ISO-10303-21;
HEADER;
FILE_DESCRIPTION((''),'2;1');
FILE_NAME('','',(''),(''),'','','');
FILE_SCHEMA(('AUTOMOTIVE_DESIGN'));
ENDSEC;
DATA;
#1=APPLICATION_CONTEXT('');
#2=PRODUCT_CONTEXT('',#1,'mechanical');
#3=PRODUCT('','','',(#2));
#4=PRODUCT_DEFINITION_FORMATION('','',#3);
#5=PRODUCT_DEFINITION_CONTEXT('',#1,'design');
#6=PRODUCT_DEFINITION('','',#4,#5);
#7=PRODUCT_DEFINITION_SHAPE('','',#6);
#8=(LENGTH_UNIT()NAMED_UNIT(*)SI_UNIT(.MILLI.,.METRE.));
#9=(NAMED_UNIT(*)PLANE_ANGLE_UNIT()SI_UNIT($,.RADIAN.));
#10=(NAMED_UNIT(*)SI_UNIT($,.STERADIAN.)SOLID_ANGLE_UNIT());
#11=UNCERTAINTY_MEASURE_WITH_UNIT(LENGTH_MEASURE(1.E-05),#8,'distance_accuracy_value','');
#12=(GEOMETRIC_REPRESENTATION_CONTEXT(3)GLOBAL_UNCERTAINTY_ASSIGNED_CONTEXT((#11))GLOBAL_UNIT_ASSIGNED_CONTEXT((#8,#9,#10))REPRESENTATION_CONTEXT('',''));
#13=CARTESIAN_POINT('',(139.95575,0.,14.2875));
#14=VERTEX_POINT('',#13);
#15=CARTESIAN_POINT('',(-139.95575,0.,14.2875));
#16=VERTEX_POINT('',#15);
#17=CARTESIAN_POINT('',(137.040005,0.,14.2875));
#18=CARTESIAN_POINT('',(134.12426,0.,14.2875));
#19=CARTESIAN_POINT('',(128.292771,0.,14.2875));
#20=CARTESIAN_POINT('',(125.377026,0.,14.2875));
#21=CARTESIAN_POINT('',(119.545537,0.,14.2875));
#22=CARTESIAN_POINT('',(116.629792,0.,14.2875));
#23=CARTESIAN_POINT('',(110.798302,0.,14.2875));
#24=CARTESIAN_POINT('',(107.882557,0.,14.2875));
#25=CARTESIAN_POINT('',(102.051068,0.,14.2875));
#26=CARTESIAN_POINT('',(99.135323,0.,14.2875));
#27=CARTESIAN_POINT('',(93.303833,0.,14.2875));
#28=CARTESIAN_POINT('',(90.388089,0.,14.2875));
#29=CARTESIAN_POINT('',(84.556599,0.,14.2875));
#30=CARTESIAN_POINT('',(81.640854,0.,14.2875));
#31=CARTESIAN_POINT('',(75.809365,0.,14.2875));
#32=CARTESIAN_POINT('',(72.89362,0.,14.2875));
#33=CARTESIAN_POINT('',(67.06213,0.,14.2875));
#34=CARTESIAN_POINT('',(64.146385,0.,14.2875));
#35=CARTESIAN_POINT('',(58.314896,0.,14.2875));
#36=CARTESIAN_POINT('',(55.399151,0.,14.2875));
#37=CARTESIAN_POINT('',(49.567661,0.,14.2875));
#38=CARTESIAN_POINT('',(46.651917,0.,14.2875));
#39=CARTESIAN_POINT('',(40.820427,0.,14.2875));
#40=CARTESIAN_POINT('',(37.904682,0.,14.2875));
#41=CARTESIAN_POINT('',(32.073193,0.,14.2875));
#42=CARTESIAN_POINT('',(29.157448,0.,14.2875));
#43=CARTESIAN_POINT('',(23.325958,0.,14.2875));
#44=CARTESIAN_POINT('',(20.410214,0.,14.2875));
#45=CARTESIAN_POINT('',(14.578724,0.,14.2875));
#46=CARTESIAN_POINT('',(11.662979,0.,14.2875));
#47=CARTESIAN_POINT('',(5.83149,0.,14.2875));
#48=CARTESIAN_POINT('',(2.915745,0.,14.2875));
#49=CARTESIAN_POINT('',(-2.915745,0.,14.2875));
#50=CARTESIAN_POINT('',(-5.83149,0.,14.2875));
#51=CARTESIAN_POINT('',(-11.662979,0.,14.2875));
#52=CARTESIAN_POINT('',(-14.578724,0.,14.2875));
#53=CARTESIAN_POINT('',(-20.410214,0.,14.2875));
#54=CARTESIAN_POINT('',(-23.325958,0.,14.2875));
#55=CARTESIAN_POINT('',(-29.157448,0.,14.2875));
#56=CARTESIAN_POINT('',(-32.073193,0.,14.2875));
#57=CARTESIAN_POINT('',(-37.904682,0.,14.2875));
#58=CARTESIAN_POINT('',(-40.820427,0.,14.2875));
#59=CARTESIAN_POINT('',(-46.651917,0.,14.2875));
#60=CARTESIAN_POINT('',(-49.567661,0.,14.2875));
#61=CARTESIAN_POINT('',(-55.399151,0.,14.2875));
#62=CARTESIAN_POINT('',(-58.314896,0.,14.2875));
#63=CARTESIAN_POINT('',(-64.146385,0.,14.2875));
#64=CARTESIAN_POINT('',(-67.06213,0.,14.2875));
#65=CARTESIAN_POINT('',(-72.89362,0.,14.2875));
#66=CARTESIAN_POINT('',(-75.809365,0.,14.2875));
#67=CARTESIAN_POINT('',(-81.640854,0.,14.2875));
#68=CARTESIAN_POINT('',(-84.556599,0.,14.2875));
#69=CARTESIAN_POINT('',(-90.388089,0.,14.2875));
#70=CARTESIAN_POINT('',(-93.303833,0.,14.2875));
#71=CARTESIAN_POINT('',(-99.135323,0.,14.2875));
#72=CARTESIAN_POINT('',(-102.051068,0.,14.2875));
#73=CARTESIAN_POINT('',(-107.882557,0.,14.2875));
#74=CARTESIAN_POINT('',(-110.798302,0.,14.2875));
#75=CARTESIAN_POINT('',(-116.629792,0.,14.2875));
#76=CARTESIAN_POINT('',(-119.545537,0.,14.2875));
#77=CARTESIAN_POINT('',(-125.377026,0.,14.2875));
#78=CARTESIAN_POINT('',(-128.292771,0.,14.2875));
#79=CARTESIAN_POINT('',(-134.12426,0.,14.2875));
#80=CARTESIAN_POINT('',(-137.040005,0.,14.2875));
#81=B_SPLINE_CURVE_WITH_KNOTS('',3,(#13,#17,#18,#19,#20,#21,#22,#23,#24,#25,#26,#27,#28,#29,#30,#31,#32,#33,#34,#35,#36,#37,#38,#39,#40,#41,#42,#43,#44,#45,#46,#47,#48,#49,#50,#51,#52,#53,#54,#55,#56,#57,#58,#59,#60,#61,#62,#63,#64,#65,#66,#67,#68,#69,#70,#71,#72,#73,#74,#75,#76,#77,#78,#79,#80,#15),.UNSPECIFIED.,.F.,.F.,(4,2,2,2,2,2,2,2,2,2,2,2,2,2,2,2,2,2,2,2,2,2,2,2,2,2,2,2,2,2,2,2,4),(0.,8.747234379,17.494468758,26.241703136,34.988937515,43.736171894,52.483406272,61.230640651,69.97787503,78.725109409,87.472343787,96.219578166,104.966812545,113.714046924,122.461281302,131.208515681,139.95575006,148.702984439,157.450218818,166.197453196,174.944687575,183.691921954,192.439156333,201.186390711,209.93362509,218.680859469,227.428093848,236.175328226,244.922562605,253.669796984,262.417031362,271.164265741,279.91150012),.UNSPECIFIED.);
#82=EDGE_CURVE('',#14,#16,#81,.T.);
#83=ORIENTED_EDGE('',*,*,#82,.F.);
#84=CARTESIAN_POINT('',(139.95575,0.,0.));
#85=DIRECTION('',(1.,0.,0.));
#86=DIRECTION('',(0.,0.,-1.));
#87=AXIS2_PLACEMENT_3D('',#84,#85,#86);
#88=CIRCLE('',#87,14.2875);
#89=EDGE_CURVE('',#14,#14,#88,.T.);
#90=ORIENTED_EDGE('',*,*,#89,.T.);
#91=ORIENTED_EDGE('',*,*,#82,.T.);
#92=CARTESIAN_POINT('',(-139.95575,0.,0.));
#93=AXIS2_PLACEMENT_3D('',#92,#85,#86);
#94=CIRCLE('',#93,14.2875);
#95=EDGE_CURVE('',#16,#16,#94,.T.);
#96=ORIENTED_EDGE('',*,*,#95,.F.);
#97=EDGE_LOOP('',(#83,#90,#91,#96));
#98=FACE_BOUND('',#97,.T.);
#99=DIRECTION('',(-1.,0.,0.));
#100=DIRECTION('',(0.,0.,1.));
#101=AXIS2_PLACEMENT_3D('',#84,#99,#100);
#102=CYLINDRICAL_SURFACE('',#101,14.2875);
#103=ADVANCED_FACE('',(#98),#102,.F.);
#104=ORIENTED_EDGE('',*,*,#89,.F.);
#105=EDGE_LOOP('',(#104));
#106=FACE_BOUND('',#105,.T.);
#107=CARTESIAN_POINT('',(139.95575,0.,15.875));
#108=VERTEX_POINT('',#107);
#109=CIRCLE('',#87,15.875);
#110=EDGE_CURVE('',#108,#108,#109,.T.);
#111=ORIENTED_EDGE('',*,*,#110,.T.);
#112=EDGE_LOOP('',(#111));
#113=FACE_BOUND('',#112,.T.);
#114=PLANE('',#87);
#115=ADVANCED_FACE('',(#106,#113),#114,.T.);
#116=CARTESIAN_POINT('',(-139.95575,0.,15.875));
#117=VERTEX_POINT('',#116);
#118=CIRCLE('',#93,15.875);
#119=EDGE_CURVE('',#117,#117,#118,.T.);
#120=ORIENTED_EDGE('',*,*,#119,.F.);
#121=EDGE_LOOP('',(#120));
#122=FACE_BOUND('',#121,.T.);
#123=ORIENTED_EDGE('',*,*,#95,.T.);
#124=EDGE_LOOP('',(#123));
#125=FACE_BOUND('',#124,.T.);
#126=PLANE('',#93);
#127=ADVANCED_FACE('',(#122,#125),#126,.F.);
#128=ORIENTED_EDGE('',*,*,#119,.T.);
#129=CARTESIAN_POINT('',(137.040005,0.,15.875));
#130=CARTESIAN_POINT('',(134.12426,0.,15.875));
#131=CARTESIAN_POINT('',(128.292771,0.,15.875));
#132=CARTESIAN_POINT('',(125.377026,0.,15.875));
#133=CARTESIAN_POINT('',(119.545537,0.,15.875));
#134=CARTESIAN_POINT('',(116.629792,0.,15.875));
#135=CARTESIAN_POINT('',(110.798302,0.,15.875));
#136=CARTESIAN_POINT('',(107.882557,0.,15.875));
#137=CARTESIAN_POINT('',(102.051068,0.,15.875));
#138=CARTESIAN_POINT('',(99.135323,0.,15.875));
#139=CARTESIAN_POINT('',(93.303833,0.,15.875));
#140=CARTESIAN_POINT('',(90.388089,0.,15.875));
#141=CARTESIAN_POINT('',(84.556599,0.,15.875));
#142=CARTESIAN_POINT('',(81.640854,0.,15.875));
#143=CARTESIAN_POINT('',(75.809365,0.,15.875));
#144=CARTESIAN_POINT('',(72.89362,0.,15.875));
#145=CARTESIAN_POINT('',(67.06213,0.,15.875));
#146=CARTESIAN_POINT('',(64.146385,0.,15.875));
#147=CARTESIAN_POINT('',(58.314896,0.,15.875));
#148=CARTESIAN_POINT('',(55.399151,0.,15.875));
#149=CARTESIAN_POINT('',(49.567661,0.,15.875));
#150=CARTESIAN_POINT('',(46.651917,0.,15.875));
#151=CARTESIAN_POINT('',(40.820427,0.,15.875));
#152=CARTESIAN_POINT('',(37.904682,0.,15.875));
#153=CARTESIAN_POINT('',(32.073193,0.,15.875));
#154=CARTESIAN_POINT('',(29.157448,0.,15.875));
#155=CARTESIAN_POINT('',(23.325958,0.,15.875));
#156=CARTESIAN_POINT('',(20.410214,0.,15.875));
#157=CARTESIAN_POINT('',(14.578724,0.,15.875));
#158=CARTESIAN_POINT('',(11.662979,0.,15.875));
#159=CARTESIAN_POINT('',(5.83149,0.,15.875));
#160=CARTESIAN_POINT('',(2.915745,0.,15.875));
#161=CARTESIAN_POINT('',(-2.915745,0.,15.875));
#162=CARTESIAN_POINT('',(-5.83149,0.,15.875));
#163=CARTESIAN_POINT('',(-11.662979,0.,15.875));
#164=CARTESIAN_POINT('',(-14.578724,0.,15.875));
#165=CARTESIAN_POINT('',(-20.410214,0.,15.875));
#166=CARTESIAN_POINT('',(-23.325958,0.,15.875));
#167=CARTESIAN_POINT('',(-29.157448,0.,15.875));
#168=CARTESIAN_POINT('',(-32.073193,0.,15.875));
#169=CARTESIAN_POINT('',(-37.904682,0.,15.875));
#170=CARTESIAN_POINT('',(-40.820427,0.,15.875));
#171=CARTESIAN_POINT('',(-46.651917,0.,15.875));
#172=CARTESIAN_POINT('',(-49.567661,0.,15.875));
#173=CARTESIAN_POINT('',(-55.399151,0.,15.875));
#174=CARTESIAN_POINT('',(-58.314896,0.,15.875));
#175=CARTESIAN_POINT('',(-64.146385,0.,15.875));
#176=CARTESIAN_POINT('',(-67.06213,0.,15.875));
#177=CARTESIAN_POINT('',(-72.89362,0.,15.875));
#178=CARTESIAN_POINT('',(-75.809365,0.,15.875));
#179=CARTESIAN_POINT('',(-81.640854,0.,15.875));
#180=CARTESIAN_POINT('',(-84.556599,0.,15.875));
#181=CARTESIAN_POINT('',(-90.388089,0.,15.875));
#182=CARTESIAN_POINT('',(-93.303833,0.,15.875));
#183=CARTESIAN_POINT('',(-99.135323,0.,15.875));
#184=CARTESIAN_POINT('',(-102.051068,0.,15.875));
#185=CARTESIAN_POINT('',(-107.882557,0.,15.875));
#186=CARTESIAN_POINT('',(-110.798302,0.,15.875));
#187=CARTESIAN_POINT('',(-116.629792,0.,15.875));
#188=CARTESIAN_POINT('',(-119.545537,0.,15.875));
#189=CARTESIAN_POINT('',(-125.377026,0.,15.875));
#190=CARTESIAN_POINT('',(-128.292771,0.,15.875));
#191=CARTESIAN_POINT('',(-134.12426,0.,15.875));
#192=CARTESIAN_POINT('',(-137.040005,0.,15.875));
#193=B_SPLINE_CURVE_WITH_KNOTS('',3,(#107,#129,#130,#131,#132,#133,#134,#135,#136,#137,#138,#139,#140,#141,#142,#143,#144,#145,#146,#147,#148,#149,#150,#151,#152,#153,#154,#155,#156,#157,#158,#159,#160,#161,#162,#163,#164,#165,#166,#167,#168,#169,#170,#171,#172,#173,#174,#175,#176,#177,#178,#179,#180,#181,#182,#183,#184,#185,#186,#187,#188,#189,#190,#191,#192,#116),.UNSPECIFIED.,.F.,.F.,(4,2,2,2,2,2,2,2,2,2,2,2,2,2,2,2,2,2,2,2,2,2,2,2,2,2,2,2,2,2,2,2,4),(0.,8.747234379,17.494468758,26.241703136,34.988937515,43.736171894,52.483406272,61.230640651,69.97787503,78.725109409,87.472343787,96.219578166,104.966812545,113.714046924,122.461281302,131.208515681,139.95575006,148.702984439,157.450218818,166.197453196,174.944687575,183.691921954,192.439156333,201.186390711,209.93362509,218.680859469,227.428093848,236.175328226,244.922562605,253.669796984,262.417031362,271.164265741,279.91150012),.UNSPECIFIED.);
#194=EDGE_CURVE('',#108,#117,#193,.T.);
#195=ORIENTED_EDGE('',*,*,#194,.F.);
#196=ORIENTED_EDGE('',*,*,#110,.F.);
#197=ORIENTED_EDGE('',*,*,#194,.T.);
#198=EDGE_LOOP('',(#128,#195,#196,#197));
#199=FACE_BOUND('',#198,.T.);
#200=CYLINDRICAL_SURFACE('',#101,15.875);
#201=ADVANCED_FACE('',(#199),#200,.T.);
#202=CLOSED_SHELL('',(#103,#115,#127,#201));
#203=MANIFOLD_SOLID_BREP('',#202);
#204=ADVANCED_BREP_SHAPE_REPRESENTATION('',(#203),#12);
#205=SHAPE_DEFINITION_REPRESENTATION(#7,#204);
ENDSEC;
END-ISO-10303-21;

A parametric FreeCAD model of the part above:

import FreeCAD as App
import Part
import Sketcher

V = App.Vector
Q = App.Units.Quantity

doc = App.newDocument("Part")
body = doc.addObject("PartDesign::Body", "Body")

# Sketch on YZ plane
sketch1 = body.newObject("Sketcher::SketchObject", "Sketch")
sketch1.AttachmentSupport = (doc.getObject("YZ_Plane"), [""])
sketch1.MapMode = "FlatFace"
sketch1.addGeometry(Part.Circle(V(0, 0, 0), V(0, 0, 1), 16), False)
sketch1.addGeometry(Part.Circle(V(0, 0, 0), V(0, 0, 1), 14), False)
sketch1.addConstraint(Sketcher.Constraint("Coincident", 0, 3, -1, 1))
sketch1.addConstraint(Sketcher.Constraint("Coincident", 1, 3, -1, 1))
sketch1.addConstraint(Sketcher.Constraint("Diameter", 0, Q("1.25 in")))
sketch1.addConstraint(Sketcher.Constraint("Diameter", 1, Q("1.125 in")))
pad1 = body.newObject("PartDesign::Pad", "Pad")
pad1.Profile = sketch1
pad1.Length = 279.9115
pad1.Midplane = True

doc.recompute()
